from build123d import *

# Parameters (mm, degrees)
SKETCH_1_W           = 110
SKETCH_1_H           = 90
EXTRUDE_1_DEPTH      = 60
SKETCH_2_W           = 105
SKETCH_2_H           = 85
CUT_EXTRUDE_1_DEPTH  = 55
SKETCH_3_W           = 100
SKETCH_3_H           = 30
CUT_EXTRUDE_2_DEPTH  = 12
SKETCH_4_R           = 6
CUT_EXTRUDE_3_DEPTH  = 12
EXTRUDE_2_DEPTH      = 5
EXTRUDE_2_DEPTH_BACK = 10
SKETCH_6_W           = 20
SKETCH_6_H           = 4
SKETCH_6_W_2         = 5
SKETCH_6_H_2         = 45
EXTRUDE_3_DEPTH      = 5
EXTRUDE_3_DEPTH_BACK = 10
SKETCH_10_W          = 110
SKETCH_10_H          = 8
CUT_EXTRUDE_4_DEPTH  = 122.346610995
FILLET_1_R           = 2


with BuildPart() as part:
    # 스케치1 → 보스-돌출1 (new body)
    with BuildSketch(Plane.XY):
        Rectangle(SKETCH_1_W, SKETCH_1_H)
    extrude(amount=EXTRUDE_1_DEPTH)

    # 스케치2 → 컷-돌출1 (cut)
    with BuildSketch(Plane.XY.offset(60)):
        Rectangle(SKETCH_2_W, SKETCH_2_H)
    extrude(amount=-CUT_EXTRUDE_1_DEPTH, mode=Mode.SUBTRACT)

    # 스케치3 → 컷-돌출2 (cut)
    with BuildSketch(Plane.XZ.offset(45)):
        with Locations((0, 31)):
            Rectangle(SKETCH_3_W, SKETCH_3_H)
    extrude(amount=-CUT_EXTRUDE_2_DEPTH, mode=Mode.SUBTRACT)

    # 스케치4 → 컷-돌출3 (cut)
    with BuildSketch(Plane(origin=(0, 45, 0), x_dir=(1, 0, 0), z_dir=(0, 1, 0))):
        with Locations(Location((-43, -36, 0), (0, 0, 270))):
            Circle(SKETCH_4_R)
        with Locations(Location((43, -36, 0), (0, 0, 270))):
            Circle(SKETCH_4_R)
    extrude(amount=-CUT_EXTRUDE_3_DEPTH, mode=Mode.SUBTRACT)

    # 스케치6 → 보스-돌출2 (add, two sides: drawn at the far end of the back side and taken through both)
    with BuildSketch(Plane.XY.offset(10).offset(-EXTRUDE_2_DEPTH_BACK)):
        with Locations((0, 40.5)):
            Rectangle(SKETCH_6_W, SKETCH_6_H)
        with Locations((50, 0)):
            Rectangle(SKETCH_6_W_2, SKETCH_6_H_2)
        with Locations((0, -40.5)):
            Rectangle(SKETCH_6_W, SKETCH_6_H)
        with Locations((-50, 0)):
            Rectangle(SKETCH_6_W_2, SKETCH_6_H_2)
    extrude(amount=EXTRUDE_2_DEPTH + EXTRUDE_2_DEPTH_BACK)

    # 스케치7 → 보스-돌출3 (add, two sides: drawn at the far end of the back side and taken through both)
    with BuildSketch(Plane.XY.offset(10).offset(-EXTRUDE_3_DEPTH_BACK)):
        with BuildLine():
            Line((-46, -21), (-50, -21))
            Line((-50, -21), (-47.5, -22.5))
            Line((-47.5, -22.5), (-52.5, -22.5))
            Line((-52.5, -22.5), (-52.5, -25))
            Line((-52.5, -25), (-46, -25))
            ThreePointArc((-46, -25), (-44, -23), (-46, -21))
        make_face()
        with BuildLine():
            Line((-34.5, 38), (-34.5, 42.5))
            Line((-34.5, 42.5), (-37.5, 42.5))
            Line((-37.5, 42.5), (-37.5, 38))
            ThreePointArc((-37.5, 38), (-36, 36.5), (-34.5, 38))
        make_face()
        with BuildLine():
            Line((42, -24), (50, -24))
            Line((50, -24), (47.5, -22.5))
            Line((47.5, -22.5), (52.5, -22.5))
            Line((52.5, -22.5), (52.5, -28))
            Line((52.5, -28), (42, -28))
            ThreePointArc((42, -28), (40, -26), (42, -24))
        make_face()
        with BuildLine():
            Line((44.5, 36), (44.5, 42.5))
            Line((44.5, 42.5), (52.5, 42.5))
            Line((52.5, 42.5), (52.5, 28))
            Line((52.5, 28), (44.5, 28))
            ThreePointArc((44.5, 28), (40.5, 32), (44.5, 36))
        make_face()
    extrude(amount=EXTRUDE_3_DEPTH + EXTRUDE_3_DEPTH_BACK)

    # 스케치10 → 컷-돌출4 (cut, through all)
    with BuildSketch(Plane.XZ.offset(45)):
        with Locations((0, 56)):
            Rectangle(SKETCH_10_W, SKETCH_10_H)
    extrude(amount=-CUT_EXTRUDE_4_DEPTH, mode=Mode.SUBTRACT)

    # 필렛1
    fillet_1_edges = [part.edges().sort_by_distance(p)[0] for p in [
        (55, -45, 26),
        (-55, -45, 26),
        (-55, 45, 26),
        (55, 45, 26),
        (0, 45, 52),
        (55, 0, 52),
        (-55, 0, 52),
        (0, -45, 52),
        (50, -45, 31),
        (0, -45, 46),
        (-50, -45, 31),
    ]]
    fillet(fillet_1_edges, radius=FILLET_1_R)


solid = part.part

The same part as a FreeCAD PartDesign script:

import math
import FreeCAD as App
import Part
import Sketcher
Q = App.Units.Quantity


def edges_at(feature, points):
    """Names of the edges that pass closest to the given points."""
    edges = feature.Shape.Edges
    near = lambda p: min(range(len(edges)), key=lambda i: edges[i].distToShape(Part.Vertex(*p))[0])
    return sorted({f"Edge{near(p) + 1}" for p in points})


def add_polygon(sketch, points):
    """Adds a closed chain of lines whose ends are joined by coincident constraints."""
    first, n = sketch.GeometryCount, len(points)
    for a, b in zip(points, points[1:] + points[:1]):
        sketch.addGeometry(Part.LineSegment(App.Vector(*a, 0), App.Vector(*b, 0)), False)
    for i in range(n):
        sketch.addConstraint(Sketcher.Constraint("Coincident", first + i, 2, first + (i + 1) % n, 1))

doc = App.newDocument("Part")
body = doc.addObject("PartDesign::Body", "Body")

# Sketch on XY plane
sketch1 = body.newObject("Sketcher::SketchObject", "Sketch")
sketch1.AttachmentSupport = (doc.getObject("XY_Plane"), [""])
sketch1.MapMode = "FlatFace"
add_polygon(sketch1, [(-55, 45), (-55, -45), (55, -45), (55, 45)])  # lines 0-3
sketch1.addConstraint(Sketcher.Constraint("Vertical", 0))
sketch1.addConstraint(Sketcher.Constraint("Horizontal", 1))
sketch1.addConstraint(Sketcher.Constraint("Vertical", 2))
sketch1.addConstraint(Sketcher.Constraint("Horizontal", 3))
sketch1.addConstraint(Sketcher.Constraint("Symmetric", 0, 2, 2, 2, -1, 1))
sketch1.addConstraint(Sketcher.Constraint("DistanceX", 1, 1, 1, 2, Q("110 mm")))
sketch1.addConstraint(Sketcher.Constraint("DistanceY", 0, 2, 0, 1, Q("90 mm")))
pad1 = body.newObject("PartDesign::Pad", "Pad")
pad1.Profile = sketch1
pad1.Length = 60

# Sketch on XY plane
sketch2 = body.newObject("Sketcher::SketchObject", "Sketch001")
sketch2.AttachmentSupport = (doc.getObject("XY_Plane"), [""])
sketch2.MapMode = "FlatFace"
sketch2.AttachmentOffset = App.Placement(App.Vector(0, 0, 60), App.Rotation())
add_polygon(sketch2, [(-52, 42), (-52, -42), (52, -42), (52, 42)])  # lines 0-3
sketch2.addConstraint(Sketcher.Constraint("Vertical", 0))
sketch2.addConstraint(Sketcher.Constraint("Horizontal", 1))
sketch2.addConstraint(Sketcher.Constraint("Vertical", 2))
sketch2.addConstraint(Sketcher.Constraint("Horizontal", 3))
sketch2.addConstraint(Sketcher.Constraint("Symmetric", 0, 2, 2, 2, -1, 1))
sketch2.addConstraint(Sketcher.Constraint("DistanceX", 1, 1, 1, 2, Q("105 mm")))
sketch2.addConstraint(Sketcher.Constraint("DistanceY", 0, 2, 0, 1, Q("85 mm")))
pocket1 = body.newObject("PartDesign::Pocket", "Pocket")
pocket1.Profile = sketch2
pocket1.Length = 55

# Sketch on XZ plane
sketch3 = body.newObject("Sketcher::SketchObject", "Sketch002")
sketch3.AttachmentSupport = (doc.getObject("XZ_Plane"), [""])
sketch3.MapMode = "FlatFace"
sketch3.AttachmentOffset = App.Placement(App.Vector(0, 0, 45), App.Rotation())
add_polygon(sketch3, [(-50, 46), (-50, 16), (50, 16), (50, 46)])  # lines 0-3
sketch3.addConstraint(Sketcher.Constraint("Vertical", 0))
sketch3.addConstraint(Sketcher.Constraint("Horizontal", 1))
sketch3.addConstraint(Sketcher.Constraint("Vertical", 2))
sketch3.addConstraint(Sketcher.Constraint("Horizontal", 3))
sketch3.addConstraint(Sketcher.Constraint("DistanceX", 1, 1, 1, 2, Q("100 mm")))
sketch3.addConstraint(Sketcher.Constraint("DistanceY", 0, 2, 0, 1, Q("30 mm")))
sketch3.addConstraint(Sketcher.Constraint("DistanceX", 0, 2, -1, 1, Q("50 mm")))
sketch3.addConstraint(Sketcher.Constraint("DistanceY", -1, 1, 0, 2, Q("16 mm")))
pocket2 = body.newObject("PartDesign::Pocket", "Pocket001")
pocket2.Profile = sketch3
pocket2.Length = 12

# Sketch on XZ plane
sketch4 = body.newObject("Sketcher::SketchObject", "Sketch003")
sketch4.AttachmentSupport = (doc.getObject("XZ_Plane"), [""])
sketch4.MapMode = "FlatFace"
sketch4.AttachmentOffset = App.Placement(App.Vector(0, 0, -45), App.Rotation())
sketch4.addGeometry(Part.Circle(App.Vector(-43, 36, 0), App.Vector(0, 0, 1), 6), False)
sketch4.addGeometry(Part.Circle(App.Vector(43, 36, 0), App.Vector(0, 0, 1), 6), False)
sketch4.addConstraint(Sketcher.Constraint("Equal", 0, 1))
sketch4.addConstraint(Sketcher.Constraint("Symmetric", 0, 3, 1, 3, -2))
sketch4.addConstraint(Sketcher.Constraint("Diameter", 0, Q("12 mm")))
sketch4.addConstraint(Sketcher.Constraint("DistanceX", 0, 3, -1, 1, Q("43 mm")))
sketch4.addConstraint(Sketcher.Constraint("DistanceY", -1, 1, 0, 3, Q("36 mm")))
pocket3 = body.newObject("PartDesign::Pocket", "Pocket002")
pocket3.Profile = sketch4
pocket3.Length = 12
pocket3.Reversed = True

# Sketch on XY plane
sketch5 = body.newObject("Sketcher::SketchObject", "Sketch004")
sketch5.AttachmentSupport = (doc.getObject("XY_Plane"), [""])
sketch5.MapMode = "FlatFace"
sketch5.AttachmentOffset = App.Placement(App.Vector(0, 0, 10), App.Rotation())
add_polygon(sketch5, [(-10, 42.5), (-10, 38.5), (10, 38.5), (10, 42.5)])  # lines 0-3
add_polygon(sketch5, [(47.5, 22.5), (47.5, -22.5), (52.5, -22.5), (52.5, 22.5)])  # lines 4-7
add_polygon(sketch5, [(-10, -38.5), (-10, -42.5), (10, -42.5), (10, -38.5)])  # lines 8-11
add_polygon(sketch5, [(-52.5, 22.5), (-52.5, -22.5), (-47.5, -22.5), (-47.5, 22.5)])  # lines 12-15
sketch5.addConstraint(Sketcher.Constraint("Vertical", 0))
sketch5.addConstraint(Sketcher.Constraint("Horizontal", 1))
sketch5.addConstraint(Sketcher.Constraint("Vertical", 2))
sketch5.addConstraint(Sketcher.Constraint("Horizontal", 3))
sketch5.addConstraint(Sketcher.Constraint("Vertical", 4))
sketch5.addConstraint(Sketcher.Constraint("Horizontal", 5))
sketch5.addConstraint(Sketcher.Constraint("Vertical", 6))
sketch5.addConstraint(Sketcher.Constraint("Horizontal", 7))
sketch5.addConstraint(Sketcher.Constraint("Vertical", 8))
sketch5.addConstraint(Sketcher.Constraint("Horizontal", 9))
sketch5.addConstraint(Sketcher.Constraint("Vertical", 10))
sketch5.addConstraint(Sketcher.Constraint("Horizontal", 11))
sketch5.addConstraint(Sketcher.Constraint("Vertical", 12))
sketch5.addConstraint(Sketcher.Constraint("Horizontal", 13))
sketch5.addConstraint(Sketcher.Constraint("Vertical", 14))
sketch5.addConstraint(Sketcher.Constraint("Horizontal", 15))
sketch5.addConstraint(Sketcher.Constraint("Symmetric", 2, 2, 8, 2, -1, 1))
sketch5.addConstraint(Sketcher.Constraint("Symmetric", 0, 2, 10, 2, -1, 1))
sketch5.addConstraint(Sketcher.Constraint("Symmetric", 6, 2, 12, 2, -1, 1))
sketch5.addConstraint(Sketcher.Constraint("Symmetric", 4, 2, 14, 2, -1, 1))
sketch5.addConstraint(Sketcher.Constraint("Horizontal", 5, 2, 12, 2))
sketch5.addConstraint(Sketcher.Constraint("Vertical", 3, 2, 8, 2))
sketch5.addConstraint(Sketcher.Constraint("DistanceX", 1, 1, 1, 2, Q("20 mm")))
sketch5.addConstraint(Sketcher.Constraint("DistanceX", 5, 1, 5, 2, Q("5 mm")))
sketch5.addConstraint(Sketcher.Constraint("DistanceY", 0, 2, 0, 1, Q("4 mm")))
sketch5.addConstraint(Sketcher.Constraint("DistanceY", 4, 2, 4, 1, Q("45 mm")))
sketch5.addConstraint(Sketcher.Constraint("DistanceY", 4, 2, 1, 2, Q("61 mm")))
sketch5.addConstraint(Sketcher.Constraint("DistanceX", -1, 1, 4, 2, Q("47.5 mm")))
pad2 = body.newObject("PartDesign::Pad", "Pad001")
pad2.Profile = sketch5
pad2.Type = "TwoLengths"
pad2.Length = 5
pad2.Length2 = 10

# Sketch on XY plane
sketch6 = body.newObject("Sketcher::SketchObject", "Sketch005")
sketch6.AttachmentSupport = (doc.getObject("XY_Plane"), [""])
sketch6.MapMode = "FlatFace"
sketch6.AttachmentOffset = App.Placement(App.Vector(0, 0, 10), App.Rotation())
sketch6.addGeometry(Part.LineSegment(App.Vector(-46, -21, 0), App.Vector(-50, -21, 0)), False)
sketch6.addGeometry(Part.LineSegment(App.Vector(-50, -21, 0), App.Vector(-47.5, -22.5, 0)), False)
sketch6.addGeometry(Part.LineSegment(App.Vector(-47.5, -22.5, 0), App.Vector(-52.5, -22.5, 0)), False)
sketch6.addGeometry(Part.LineSegment(App.Vector(-52.5, -22.5, 0), App.Vector(-52.5, -25, 0)), False)
sketch6.addGeometry(Part.LineSegment(App.Vector(-52.5, -25, 0), App.Vector(-46, -25, 0)), False)
sketch6.addGeometry(Part.ArcOfCircle(Part.Circle(App.Vector(-46, -23, 0), App.Vector(0, 0, 1), 2), math.radians(-90), math.radians(90)), False)
sketch6.addGeometry(Part.LineSegment(App.Vector(-34.5, 38, 0), App.Vector(-34.5, 42.5, 0)), False)
sketch6.addGeometry(Part.LineSegment(App.Vector(-34.5, 42.5, 0), App.Vector(-37.5, 42.5, 0)), False)
sketch6.addGeometry(Part.LineSegment(App.Vector(-37.5, 42.5, 0), App.Vector(-37.5, 38, 0)), False)
sketch6.addGeometry(Part.ArcOfCircle(Part.Circle(App.Vector(-36, 38, 0), App.Vector(0, 0, 1), 1.5), math.radians(180), math.radians(360)), False)
sketch6.addGeometry(Part.LineSegment(App.Vector(50, -24, 0), App.Vector(42, -24, 0)), False)
sketch6.addGeometry(Part.ArcOfCircle(Part.Circle(App.Vector(42, -26, 0), App.Vector(0, 0, 1), 2), math.radians(90), math.radians(270)), False)
sketch6.addGeometry(Part.LineSegment(App.Vector(42, -28, 0), App.Vector(52.5, -28, 0)), False)
sketch6.addGeometry(Part.LineSegment(App.Vector(52.5, -28, 0), App.Vector(52.5, -22.5, 0)), False)
sketch6.addGeometry(Part.LineSegment(App.Vector(52.5, -22.5, 0), App.Vector(47.5, -22.5, 0)), False)
sketch6.addGeometry(Part.LineSegment(App.Vector(47.5, -22.5, 0), App.Vector(50, -24, 0)), False)
sketch6.addGeometry(Part.LineSegment(App.Vector(44.5, 42.5, 0), App.Vector(44.5, 36, 0)), False)
sketch6.addGeometry(Part.ArcOfCircle(Part.Circle(App.Vector(44.5, 32, 0), App.Vector(0, 0, 1), 4), math.radians(90), math.radians(270)), False)
sketch6.addGeometry(Part.LineSegment(App.Vector(44.5, 28, 0), App.Vector(52.5, 28, 0)), False)
sketch6.addGeometry(Part.LineSegment(App.Vector(52.5, 28, 0), App.Vector(52.5, 42.5, 0)), False)
sketch6.addGeometry(Part.LineSegment(App.Vector(52.5, 42.5, 0), App.Vector(44.5, 42.5, 0)), False)
sketch6.addConstraint(Sketcher.Constraint("Coincident", 0, 2, 1, 1))
sketch6.addConstraint(Sketcher.Constraint("Coincident", 1, 2, 2, 1))
sketch6.addConstraint(Sketcher.Constraint("Coincident", 2, 2, 3, 1))
sketch6.addConstraint(Sketcher.Constraint("Coincident", 3, 2, 4, 1))
sketch6.addConstraint(Sketcher.Constraint("Tangent", 4, 2, 5, 1))
sketch6.addConstraint(Sketcher.Constraint("Tangent", 5, 2, 0, 1))
sketch6.addConstraint(Sketcher.Constraint("Coincident", 6, 2, 7, 1))
sketch6.addConstraint(Sketcher.Constraint("Coincident", 7, 2, 8, 1))
sketch6.addConstraint(Sketcher.Constraint("Tangent", 8, 2, 9, 1))
sketch6.addConstraint(Sketcher.Constraint("Tangent", 9, 2, 6, 1))
sketch6.addConstraint(Sketcher.Constraint("Tangent", 10, 2, 11, 1))
sketch6.addConstraint(Sketcher.Constraint("Tangent", 11, 2, 12, 1))
sketch6.addConstraint(Sketcher.Constraint("Coincident", 12, 2, 13, 1))
sketch6.addConstraint(Sketcher.Constraint("Coincident", 13, 2, 14, 1))
sketch6.addConstraint(Sketcher.Constraint("Coincident", 14, 2, 15, 1))
sketch6.addConstraint(Sketcher.Constraint("Coincident", 15, 2, 10, 1))
sketch6.addConstraint(Sketcher.Constraint("Coincident", 16, 2, 17, 1))
sketch6.addConstraint(Sketcher.Constraint("Tangent", 17, 2, 18, 1))
sketch6.addConstraint(Sketcher.Constraint("Coincident", 18, 2, 19, 1))
sketch6.addConstraint(Sketcher.Constraint("Coincident", 19, 2, 20, 1))
sketch6.addConstraint(Sketcher.Constraint("Coincident", 20, 2, 16, 1))
sketch6.addConstraint(Sketcher.Constraint("Horizontal", 0))
sketch6.addConstraint(Sketcher.Constraint("Horizontal", 2))
sketch6.addConstraint(Sketcher.Constraint("Vertical", 3))
sketch6.addConstraint(Sketcher.Constraint("Horizontal", 4))
sketch6.addConstraint(Sketcher.Constraint("Vertical", 6))
sketch6.addConstraint(Sketcher.Constraint("Horizontal", 7))
sketch6.addConstraint(Sketcher.Constraint("Vertical", 8))
sketch6.addConstraint(Sketcher.Constraint("Horizontal", 10))
sketch6.addConstraint(Sketcher.Constraint("Horizontal", 12))
sketch6.addConstraint(Sketcher.Constraint("Vertical", 13))
sketch6.addConstraint(Sketcher.Constraint("Horizontal", 14))
sketch6.addConstraint(Sketcher.Constraint("Vertical", 16))
sketch6.addConstraint(Sketcher.Constraint("Horizontal", 18))
sketch6.addConstraint(Sketcher.Constraint("Vertical", 19))
sketch6.addConstraint(Sketcher.Constraint("Horizontal", 20))
sketch6.addConstraint(Sketcher.Constraint("Equal", 5, 11))
sketch6.addConstraint(Sketcher.Constraint("Symmetric", 2, 2, 13, 2, -2))
sketch6.addConstraint(Sketcher.Constraint("Symmetric", 12, 2, 18, 2, -1))
sketch6.addConstraint(Sketcher.Constraint("Parallel", 1, 15))
sketch6.addConstraint(Sketcher.Constraint("Horizontal", 7, 2, 19, 2))
sketch6.addConstraint(Sketcher.Constraint("Vertical", 17, 3, 16, 2))
sketch6.addConstraint(Sketcher.Constraint("Equal", 2, 14))
sketch6.addConstraint(Sketcher.Constraint("Equal", 10, 18))
sketch6.addConstraint(Sketcher.Constraint("Equal", 4, 16))
sketch6.addConstraint(Sketcher.Constraint("Equal", 1, 15))
sketch6.addConstraint(Sketcher.Constraint("Radius", 5, Q("2 mm")))
sketch6.addConstraint(Sketcher.Constraint("Radius", 17, Q("4 mm")))
sketch6.addConstraint(Sketcher.Constraint("Radius", 9, Q("1.5 mm")))
sketch6.addConstraint(Sketcher.Constraint("DistanceX", 0, 2, 0, 1, Q("4 mm")))
sketch6.addConstraint(Sketcher.Constraint("DistanceX", 2, 2, 2, 1, Q("5 mm")))
sketch6.addConstraint(Sketcher.Constraint("DistanceX", 10, 2, 10, 1, Q("8 mm")))
sketch6.addConstraint(Sketcher.Constraint("DistanceX", 4, 1, 4, 2, Q("6.5 mm")))
sketch6.addConstraint(Sketcher.Constraint("DistanceY", 3, 2, 3, 1, Q("2.5 mm")))
sketch6.addConstraint(Sketcher.Constraint("DistanceY", 6, 1, 6, 2, Q("4.5 mm")))
sketch6.addConstraint(Sketcher.Constraint("DistanceX", 5, 3, -1, 1, Q("46 mm")))
sketch6.addConstraint(Sketcher.Constraint("DistanceY", 5, 3, -1, 1, Q("23 mm")))
sketch6.addConstraint(Sketcher.Constraint("DistanceX", 9, 3, -1, 1, Q("36 mm")))
pad3 = body.newObject("PartDesign::Pad", "Pad002")
pad3.Profile = sketch6
pad3.Type = "TwoLengths"
pad3.Length = 5
pad3.Length2 = 10

# Sketch on XZ plane
sketch7 = body.newObject("Sketcher::SketchObject", "Sketch006")
sketch7.AttachmentSupport = (doc.getObject("XZ_Plane"), [""])
sketch7.MapMode = "FlatFace"
sketch7.AttachmentOffset = App.Placement(App.Vector(0, 0, 45), App.Rotation())
add_polygon(sketch7, [(-55, 60), (-55, 52), (55, 52), (55, 60)])  # lines 0-3
sketch7.addConstraint(Sketcher.Constraint("Vertical", 0))
sketch7.addConstraint(Sketcher.Constraint("Horizontal", 1))
sketch7.addConstraint(Sketcher.Constraint("Vertical", 2))
sketch7.addConstraint(Sketcher.Constraint("Horizontal", 3))
sketch7.addConstraint(Sketcher.Constraint("DistanceX", 1, 1, 1, 2, Q("110 mm")))
sketch7.addConstraint(Sketcher.Constraint("DistanceY", 0, 2, 0, 1, Q("8 mm")))
sketch7.addConstraint(Sketcher.Constraint("DistanceX", 0, 2, -1, 1, Q("55 mm")))
sketch7.addConstraint(Sketcher.Constraint("DistanceY", -1, 1, 0, 2, Q("52 mm")))
pocket4 = body.newObject("PartDesign::Pocket", "Pocket003")
pocket4.Profile = sketch7
pocket4.Type = "ThroughAll"
doc.recompute()

fillet = body.newObject("PartDesign::Fillet", "Fillet")
fillet.Base = (pocket4, edges_at(pocket4, [
    (55, -45, 26),
    (-55, -45, 26),
    (-55, 45, 26),
    (55, 45, 26),
    (0, 45, 52),
    (55, 0, 52),
    (-55, 0, 52),
    (0, -45, 52),
    (50, -45, 31),
    (0, -45, 46),
    (-50, -45, 31),
]))
fillet.Radius = 2

doc.recompute()
